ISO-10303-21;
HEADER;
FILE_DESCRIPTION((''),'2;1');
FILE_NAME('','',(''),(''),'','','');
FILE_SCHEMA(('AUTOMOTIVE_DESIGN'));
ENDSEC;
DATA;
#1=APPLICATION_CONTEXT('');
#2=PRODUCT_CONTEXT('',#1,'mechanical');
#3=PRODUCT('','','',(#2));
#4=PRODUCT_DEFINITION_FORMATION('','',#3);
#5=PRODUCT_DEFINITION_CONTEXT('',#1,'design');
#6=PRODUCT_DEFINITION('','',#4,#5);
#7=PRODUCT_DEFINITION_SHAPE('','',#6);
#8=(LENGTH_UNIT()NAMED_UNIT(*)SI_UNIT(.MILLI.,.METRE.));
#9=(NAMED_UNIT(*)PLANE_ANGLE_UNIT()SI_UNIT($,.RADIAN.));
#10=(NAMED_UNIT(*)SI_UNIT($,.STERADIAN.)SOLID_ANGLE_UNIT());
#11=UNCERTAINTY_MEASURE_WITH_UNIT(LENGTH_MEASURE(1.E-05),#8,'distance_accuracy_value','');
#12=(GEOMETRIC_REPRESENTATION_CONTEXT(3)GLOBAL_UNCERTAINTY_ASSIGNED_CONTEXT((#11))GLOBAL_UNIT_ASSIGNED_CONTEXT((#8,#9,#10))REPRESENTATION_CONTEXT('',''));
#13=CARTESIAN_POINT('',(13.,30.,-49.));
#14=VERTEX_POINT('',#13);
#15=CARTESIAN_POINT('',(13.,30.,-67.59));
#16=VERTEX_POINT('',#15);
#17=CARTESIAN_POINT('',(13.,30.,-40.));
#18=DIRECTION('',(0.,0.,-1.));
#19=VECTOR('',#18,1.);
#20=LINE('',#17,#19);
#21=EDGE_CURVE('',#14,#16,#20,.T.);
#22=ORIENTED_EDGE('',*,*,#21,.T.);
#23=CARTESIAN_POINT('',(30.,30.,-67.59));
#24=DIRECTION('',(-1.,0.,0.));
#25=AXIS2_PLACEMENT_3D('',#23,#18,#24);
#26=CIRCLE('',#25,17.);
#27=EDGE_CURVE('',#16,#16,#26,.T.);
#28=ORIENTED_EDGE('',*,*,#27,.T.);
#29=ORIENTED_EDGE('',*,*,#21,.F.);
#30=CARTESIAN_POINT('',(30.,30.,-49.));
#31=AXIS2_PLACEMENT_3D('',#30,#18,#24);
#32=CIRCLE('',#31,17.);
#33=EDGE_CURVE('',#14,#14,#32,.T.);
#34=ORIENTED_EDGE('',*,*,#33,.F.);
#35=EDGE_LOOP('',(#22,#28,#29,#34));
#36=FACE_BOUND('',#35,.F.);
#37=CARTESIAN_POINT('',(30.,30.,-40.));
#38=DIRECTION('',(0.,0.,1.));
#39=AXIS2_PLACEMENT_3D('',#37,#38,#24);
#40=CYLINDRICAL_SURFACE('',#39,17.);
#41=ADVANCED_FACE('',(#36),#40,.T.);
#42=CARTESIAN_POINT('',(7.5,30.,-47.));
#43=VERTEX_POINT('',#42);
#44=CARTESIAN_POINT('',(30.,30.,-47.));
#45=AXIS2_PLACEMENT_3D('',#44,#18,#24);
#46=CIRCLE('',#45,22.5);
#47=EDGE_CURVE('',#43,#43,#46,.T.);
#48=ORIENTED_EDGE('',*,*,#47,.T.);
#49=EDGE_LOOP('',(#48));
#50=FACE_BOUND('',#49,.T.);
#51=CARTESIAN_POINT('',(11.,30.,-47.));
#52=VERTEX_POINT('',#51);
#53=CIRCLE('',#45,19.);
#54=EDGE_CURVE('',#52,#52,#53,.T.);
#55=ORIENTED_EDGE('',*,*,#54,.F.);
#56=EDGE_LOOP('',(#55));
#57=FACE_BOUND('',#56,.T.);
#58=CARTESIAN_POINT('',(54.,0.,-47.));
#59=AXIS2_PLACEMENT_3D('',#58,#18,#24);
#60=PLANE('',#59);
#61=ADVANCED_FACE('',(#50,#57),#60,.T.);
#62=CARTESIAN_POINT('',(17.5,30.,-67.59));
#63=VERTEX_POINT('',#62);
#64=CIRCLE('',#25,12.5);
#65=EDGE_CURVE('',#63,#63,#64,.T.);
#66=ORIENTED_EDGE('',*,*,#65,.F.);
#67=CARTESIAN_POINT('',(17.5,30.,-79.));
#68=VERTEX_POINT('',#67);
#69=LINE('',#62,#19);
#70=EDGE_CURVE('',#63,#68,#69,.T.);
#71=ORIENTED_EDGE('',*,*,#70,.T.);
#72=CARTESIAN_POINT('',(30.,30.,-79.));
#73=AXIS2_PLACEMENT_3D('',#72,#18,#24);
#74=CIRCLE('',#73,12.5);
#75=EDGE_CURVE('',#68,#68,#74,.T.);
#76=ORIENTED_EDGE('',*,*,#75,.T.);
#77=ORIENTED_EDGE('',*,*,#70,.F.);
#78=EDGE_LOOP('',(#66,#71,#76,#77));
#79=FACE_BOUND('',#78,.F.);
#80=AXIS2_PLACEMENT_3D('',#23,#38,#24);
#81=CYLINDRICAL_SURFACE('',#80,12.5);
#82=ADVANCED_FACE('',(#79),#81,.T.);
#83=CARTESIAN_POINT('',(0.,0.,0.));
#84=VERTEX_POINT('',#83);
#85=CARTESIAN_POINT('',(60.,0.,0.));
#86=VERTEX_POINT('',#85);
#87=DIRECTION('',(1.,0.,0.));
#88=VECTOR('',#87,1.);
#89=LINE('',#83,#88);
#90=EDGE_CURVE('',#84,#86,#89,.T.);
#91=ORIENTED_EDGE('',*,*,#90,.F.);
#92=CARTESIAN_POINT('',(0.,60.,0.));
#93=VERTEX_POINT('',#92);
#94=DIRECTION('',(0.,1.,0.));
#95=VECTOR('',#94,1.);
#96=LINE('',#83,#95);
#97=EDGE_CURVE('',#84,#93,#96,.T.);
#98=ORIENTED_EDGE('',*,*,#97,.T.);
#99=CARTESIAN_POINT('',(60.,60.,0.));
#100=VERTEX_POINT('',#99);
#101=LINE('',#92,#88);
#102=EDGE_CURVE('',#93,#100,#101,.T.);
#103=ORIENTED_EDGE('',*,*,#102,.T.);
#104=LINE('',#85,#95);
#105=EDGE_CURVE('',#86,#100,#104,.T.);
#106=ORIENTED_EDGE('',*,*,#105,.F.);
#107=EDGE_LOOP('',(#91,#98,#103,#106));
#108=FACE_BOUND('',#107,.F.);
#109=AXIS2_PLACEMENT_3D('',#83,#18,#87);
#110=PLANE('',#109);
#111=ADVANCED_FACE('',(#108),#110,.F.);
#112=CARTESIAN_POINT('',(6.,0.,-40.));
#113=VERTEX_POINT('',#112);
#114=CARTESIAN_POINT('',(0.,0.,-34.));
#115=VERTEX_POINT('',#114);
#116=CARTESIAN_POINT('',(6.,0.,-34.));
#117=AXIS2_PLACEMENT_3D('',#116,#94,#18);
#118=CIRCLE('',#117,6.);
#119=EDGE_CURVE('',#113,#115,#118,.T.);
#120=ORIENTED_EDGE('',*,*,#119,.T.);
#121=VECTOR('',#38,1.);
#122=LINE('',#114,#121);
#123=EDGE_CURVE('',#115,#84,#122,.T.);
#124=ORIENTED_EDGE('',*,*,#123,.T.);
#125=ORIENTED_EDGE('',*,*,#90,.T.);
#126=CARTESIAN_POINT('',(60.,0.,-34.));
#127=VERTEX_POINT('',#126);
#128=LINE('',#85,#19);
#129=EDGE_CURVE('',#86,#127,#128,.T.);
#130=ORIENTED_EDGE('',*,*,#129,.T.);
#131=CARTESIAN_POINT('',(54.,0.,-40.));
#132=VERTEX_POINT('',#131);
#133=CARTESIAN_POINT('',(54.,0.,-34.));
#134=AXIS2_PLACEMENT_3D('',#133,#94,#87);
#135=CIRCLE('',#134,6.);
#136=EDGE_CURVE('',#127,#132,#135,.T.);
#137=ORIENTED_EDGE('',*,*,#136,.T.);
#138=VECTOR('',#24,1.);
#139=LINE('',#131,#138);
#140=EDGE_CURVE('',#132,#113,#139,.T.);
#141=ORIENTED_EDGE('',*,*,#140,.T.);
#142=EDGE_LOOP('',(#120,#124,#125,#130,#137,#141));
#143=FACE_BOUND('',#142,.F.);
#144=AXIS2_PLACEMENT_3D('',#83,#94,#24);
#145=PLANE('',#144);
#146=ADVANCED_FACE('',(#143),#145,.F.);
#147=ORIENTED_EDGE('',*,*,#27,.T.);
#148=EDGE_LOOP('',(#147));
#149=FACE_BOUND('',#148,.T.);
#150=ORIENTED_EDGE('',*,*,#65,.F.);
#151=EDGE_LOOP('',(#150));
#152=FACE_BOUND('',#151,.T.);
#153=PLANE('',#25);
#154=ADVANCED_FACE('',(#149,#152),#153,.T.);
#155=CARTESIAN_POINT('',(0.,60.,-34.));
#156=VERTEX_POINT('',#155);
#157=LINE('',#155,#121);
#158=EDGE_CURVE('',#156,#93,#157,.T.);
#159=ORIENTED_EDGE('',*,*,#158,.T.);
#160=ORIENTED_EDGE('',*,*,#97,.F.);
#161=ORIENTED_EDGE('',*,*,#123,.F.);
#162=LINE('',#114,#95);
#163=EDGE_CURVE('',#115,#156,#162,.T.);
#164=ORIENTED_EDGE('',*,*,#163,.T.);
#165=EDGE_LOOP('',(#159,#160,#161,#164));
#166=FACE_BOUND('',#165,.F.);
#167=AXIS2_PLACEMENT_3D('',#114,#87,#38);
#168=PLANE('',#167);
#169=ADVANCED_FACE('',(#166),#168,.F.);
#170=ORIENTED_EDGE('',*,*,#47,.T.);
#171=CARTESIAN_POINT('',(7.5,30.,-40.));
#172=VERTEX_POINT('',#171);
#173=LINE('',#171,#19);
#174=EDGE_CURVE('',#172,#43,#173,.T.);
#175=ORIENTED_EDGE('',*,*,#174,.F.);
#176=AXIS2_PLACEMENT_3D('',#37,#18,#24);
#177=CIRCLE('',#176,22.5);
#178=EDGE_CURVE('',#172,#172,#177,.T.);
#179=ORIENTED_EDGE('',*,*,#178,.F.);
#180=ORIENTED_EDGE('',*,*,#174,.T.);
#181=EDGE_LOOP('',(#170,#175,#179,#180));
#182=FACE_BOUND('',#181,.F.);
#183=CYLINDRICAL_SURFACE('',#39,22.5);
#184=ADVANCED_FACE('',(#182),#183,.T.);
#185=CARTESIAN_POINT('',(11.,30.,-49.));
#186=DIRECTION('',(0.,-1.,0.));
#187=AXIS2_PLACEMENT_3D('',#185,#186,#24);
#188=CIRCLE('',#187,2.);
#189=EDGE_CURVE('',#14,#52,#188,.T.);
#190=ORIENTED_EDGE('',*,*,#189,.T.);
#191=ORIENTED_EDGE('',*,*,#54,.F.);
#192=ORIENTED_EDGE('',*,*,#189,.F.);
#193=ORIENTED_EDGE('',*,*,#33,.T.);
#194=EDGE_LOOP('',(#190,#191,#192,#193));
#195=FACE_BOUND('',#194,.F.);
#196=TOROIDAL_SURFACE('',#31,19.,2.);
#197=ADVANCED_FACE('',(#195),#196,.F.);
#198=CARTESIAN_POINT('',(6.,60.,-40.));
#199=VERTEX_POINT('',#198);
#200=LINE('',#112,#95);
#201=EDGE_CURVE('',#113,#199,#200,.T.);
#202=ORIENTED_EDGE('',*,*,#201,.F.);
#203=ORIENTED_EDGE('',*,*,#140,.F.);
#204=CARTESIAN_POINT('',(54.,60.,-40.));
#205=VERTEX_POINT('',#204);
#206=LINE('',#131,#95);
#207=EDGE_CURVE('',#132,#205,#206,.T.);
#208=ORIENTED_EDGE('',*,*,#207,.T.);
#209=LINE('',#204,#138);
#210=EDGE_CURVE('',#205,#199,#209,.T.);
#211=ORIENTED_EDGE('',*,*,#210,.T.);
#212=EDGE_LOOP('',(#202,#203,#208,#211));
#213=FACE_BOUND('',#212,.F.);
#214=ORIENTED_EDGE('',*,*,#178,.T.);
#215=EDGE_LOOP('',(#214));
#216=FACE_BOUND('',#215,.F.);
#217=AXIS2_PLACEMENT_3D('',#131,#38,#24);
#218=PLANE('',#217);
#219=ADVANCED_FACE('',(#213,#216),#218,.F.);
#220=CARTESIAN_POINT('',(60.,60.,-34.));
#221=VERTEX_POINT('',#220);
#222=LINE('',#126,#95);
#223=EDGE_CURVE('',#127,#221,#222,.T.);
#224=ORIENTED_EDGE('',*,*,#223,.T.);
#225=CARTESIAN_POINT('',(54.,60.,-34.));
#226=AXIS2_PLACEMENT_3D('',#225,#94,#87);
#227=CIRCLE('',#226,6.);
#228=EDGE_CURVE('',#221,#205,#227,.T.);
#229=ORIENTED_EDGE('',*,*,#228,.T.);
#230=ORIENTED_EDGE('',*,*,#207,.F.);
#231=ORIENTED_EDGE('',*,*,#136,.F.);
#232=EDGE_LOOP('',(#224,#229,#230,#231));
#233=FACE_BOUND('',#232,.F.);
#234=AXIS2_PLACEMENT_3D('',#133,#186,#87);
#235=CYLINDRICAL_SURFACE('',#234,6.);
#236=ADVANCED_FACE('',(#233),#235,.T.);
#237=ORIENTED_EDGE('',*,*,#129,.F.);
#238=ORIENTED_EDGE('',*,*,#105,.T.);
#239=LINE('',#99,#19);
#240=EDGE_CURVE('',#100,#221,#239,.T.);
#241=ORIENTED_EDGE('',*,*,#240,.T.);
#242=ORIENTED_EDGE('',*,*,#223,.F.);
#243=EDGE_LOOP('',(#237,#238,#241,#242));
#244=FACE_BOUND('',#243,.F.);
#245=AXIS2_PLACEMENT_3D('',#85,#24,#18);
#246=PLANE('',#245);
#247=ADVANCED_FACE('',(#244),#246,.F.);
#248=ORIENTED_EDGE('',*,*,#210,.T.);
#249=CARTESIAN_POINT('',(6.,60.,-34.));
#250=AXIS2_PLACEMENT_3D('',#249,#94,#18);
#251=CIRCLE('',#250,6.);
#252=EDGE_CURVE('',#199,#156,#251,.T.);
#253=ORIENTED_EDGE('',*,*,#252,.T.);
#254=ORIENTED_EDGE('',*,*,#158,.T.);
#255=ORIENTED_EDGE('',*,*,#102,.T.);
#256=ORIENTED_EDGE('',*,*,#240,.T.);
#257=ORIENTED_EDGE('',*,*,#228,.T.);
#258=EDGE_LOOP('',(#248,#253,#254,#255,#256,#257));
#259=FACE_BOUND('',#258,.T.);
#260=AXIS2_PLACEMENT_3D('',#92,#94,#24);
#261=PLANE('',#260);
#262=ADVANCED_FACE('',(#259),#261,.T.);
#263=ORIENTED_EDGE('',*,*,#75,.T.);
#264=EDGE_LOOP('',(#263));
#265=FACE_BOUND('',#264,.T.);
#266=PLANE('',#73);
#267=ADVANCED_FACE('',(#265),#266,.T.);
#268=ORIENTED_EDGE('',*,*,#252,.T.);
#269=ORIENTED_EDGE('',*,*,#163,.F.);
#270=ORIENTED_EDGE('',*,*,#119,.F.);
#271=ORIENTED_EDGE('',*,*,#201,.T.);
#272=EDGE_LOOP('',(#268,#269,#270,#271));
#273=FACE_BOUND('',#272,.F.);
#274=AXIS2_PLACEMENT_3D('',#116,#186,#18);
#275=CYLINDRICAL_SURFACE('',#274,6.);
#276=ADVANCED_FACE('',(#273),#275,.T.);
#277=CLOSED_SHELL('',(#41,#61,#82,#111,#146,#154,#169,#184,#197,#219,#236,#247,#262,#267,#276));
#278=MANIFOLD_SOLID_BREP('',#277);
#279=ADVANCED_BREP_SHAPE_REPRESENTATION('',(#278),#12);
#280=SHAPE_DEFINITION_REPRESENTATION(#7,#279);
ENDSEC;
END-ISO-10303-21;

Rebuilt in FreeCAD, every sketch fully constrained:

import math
import FreeCAD as App
import Part
import Sketcher
Q = App.Units.Quantity


def edges_at(feature, points):
    """Names of the edges that pass closest to the given points."""
    edges = feature.Shape.Edges
    near = lambda p: min(range(len(edges)), key=lambda i: edges[i].distToShape(Part.Vertex(*p))[0])
    return sorted({f"Edge{near(p) + 1}" for p in points})

doc = App.newDocument("Part")
body = doc.addObject("PartDesign::Body", "Body")

# Sketch on XZ plane
sketch1 = body.newObject("Sketcher::SketchObject", "Sketch")
sketch1.AttachmentSupport = (doc.getObject("XZ_Plane"), [""])
sketch1.MapMode = "FlatFace"
sketch1.addGeometry(Part.LineSegment(App.Vector(0, -34, 0), App.Vector(0, 0, 0)), False)
sketch1.addGeometry(Part.LineSegment(App.Vector(0, 0, 0), App.Vector(60, 0, 0)), False)
sketch1.addGeometry(Part.LineSegment(App.Vector(60, 0, 0), App.Vector(60, -34, 0)), False)
sketch1.addGeometry(Part.ArcOfCircle(Part.Circle(App.Vector(54, -34, 0), App.Vector(0, 0, 1), 6), math.radians(-90), math.radians(0)), False)
sketch1.addGeometry(Part.LineSegment(App.Vector(54, -40, 0), App.Vector(6, -40, 0)), False)
sketch1.addGeometry(Part.ArcOfCircle(Part.Circle(App.Vector(6, -34, 0), App.Vector(0, 0, 1), 6), math.radians(180), math.radians(270)), False)
sketch1.addConstraint(Sketcher.Constraint("Coincident", 0, 2, 1, 1))
sketch1.addConstraint(Sketcher.Constraint("Coincident", 1, 2, 2, 1))
sketch1.addConstraint(Sketcher.Constraint("Tangent", 2, 2, 3, 2))
sketch1.addConstraint(Sketcher.Constraint("Tangent", 3, 1, 4, 1))
sketch1.addConstraint(Sketcher.Constraint("Tangent", 4, 2, 5, 2))
sketch1.addConstraint(Sketcher.Constraint("Tangent", 5, 1, 0, 1))
sketch1.addConstraint(Sketcher.Constraint("Vertical", 0))
sketch1.addConstraint(Sketcher.Constraint("Horizontal", 1))
sketch1.addConstraint(Sketcher.Constraint("Vertical", 2))
sketch1.addConstraint(Sketcher.Constraint("Horizontal", 4))
sketch1.addConstraint(Sketcher.Constraint("Coincident", 0, 2, -1, 1))
sketch1.addConstraint(Sketcher.Constraint("Equal", 3, 5))
sketch1.addConstraint(Sketcher.Constraint("Radius", 3, Q("6 mm")))
sketch1.addConstraint(Sketcher.Constraint("DistanceX", 1, 1, 1, 2, Q("60 mm")))
sketch1.addConstraint(Sketcher.Constraint("DistanceY", 3, 1, -1, 1, Q("40 mm")))
pad1 = body.newObject("PartDesign::Pad", "Pad")
pad1.Profile = sketch1
pad1.Length = 60
pad1.Reversed = True

# Sketch on XY plane
sketch2 = body.newObject("Sketcher::SketchObject", "Sketch001")
sketch2.AttachmentSupport = (doc.getObject("XY_Plane"), [""])
sketch2.MapMode = "FlatFace"
sketch2.AttachmentOffset = App.Placement(App.Vector(0, 0, -40), App.Rotation())
sketch2.addGeometry(Part.Circle(App.Vector(30, 30, 0), App.Vector(0, 0, 1), 22), False)
sketch2.addGeometry(Part.Circle(App.Vector(30, 30, 0), App.Vector(0, 0, 1), 17), False)
sketch2.addConstraint(Sketcher.Constraint("Coincident", 1, 3, 0, 3))
sketch2.addConstraint(Sketcher.Constraint("Diameter", 0, Q("45 mm")))
sketch2.addConstraint(Sketcher.Constraint("Diameter", 1, Q("34 mm")))
sketch2.addConstraint(Sketcher.Constraint("DistanceX", -1, 1, 0, 3, Q("30 mm")))
sketch2.addConstraint(Sketcher.Constraint("DistanceY", -1, 1, 0, 3, Q("30 mm")))
pad2 = body.newObject("PartDesign::Pad", "Pad001")
pad2.Profile = sketch2
pad2.Length = 7
pad2.Reversed = True

# Sketch on XY plane
sketch3 = body.newObject("Sketcher::SketchObject", "Sketch002")
sketch3.AttachmentSupport = (doc.getObject("XY_Plane"), [""])
sketch3.MapMode = "FlatFace"
sketch3.AttachmentOffset = App.Placement(App.Vector(0, 0, -40), App.Rotation())
sketch3.addGeometry(Part.Circle(App.Vector(30, 30, 0), App.Vector(0, 0, 1), 17), False)
sketch3.addConstraint(Sketcher.Constraint("Diameter", 0, Q("34 mm")))
sketch3.addConstraint(Sketcher.Constraint("DistanceX", -1, 1, 0, 3, Q("30 mm")))
sketch3.addConstraint(Sketcher.Constraint("DistanceY", -1, 1, 0, 3, Q("30 mm")))
pad3 = body.newObject("PartDesign::Pad", "Pad002")
pad3.Profile = sketch3
pad3.Length = 27.59
pad3.Reversed = True
doc.recompute()

fillet = body.newObject("PartDesign::Fillet", "Fillet")
fillet.Base = (pad3, edges_at(pad3, [(47, 30, -47)]))
fillet.Radius = 2

# Sketch on XY plane
sketch4 = body.newObject("Sketcher::SketchObject", "Sketch003")
sketch4.AttachmentSupport = (doc.getObject("XY_Plane"), [""])
sketch4.MapMode = "FlatFace"
sketch4.AttachmentOffset = App.Placement(App.Vector(0, 0, -67.59), App.Rotation())
sketch4.addGeometry(Part.Circle(App.Vector(30, 30, 0), App.Vector(0, 0, 1), 12), False)
sketch4.addConstraint(Sketcher.Constraint("Diameter", 0, Q("25 mm")))
sketch4.addConstraint(Sketcher.Constraint("DistanceX", -1, 1, 0, 3, Q("30 mm")))
sketch4.addConstraint(Sketcher.Constraint("DistanceY", -1, 1, 0, 3, Q("30 mm")))
pad4 = body.newObject("PartDesign::Pad", "Pad003")
pad4.Profile = sketch4
pad4.Length = 11.41
pad4.Reversed = True

doc.recompute()
